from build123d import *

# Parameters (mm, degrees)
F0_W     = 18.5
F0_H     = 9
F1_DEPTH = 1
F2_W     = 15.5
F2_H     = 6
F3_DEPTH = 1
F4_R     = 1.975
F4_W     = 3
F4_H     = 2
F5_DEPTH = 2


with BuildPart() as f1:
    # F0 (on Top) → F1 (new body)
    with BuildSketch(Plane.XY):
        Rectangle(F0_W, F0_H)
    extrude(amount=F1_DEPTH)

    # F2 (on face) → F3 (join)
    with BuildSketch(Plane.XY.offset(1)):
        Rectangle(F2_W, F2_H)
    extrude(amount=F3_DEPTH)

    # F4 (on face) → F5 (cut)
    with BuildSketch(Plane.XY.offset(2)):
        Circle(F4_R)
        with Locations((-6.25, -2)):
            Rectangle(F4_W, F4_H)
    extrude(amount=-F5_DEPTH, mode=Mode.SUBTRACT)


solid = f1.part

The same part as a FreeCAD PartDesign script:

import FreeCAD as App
import Part
import Sketcher
from FreeCAD import Vector
Q = App.Units.Quantity


def add_polygon(sketch, points):
    """Adds a closed chain of lines whose ends are joined by coincident constraints."""
    first, n = sketch.GeometryCount, len(points)
    for a, b in zip(points, points[1:] + points[:1]):
        sketch.addGeometry(Part.LineSegment(App.Vector(*a, 0), App.Vector(*b, 0)), False)
    for i in range(n):
        sketch.addConstraint(Sketcher.Constraint("Coincident", first + i, 2, first + (i + 1) % n, 1))

doc = App.newDocument("Part")
body = doc.addObject("PartDesign::Body", "Body")

# Sketch on XY plane
sketch1 = doc.addObject("Sketcher::SketchObject", "Sketch")
body.addObject(sketch1)
sketch1.AttachmentSupport = (doc.XY_Plane, [""])
sketch1.MapMode = "FlatFace"
add_polygon(sketch1, [(-9, 4), (-9, -4), (9, -4), (9, 4)])  # lines 0-3
sketch1.addConstraint([
    Sketcher.Constraint("Vertical", 0),
    Sketcher.Constraint("Horizontal", 1),
    Sketcher.Constraint("Vertical", 2),
    Sketcher.Constraint("Horizontal", 3),
    Sketcher.Constraint("Symmetric", 0, 2, 2, 2, -1, 1),
    Sketcher.Constraint("DistanceY", 0, 2, 0, 1, Q("9 mm")),
    Sketcher.Constraint("DistanceX", 1, 1, 1, 2, Q("18.5 mm")),
])
pad1 = doc.addObject("PartDesign::Pad", "Pad")
body.addObject(pad1)
pad1.Profile = sketch1
pad1.Length = 1

# Sketch on XY plane
sketch2 = doc.addObject("Sketcher::SketchObject", "Sketch001")
body.addObject(sketch2)
sketch2.AttachmentSupport = (doc.XY_Plane, [""])
sketch2.MapMode = "FlatFace"
sketch2.AttachmentOffset = App.Placement(Vector(0, 0, 1), App.Rotation())
add_polygon(sketch2, [(-8, 3), (-8, -3), (8, -3), (8, 3)])  # lines 0-3
sketch2.addConstraint([
    Sketcher.Constraint("Vertical", 0),
    Sketcher.Constraint("Horizontal", 1),
    Sketcher.Constraint("Vertical", 2),
    Sketcher.Constraint("Horizontal", 3),
    Sketcher.Constraint("Symmetric", 0, 2, 2, 2, -1, 1),
    Sketcher.Constraint("DistanceY", 0, 2, 0, 1, Q("6 mm")),
    Sketcher.Constraint("DistanceX", 1, 1, 1, 2, Q("15.5 mm")),
])
pad2 = doc.addObject("PartDesign::Pad", "Pad001")
body.addObject(pad2)
pad2.Profile = sketch2
pad2.Length = 1

# Sketch on XY plane
sketch3 = doc.addObject("Sketcher::SketchObject", "Sketch002")
body.addObject(sketch3)
sketch3.AttachmentSupport = (doc.XY_Plane, [""])
sketch3.MapMode = "FlatFace"
sketch3.AttachmentOffset = App.Placement(Vector(0, 0, 2), App.Rotation())
sketch3.addGeometry(Part.Circle(Vector(0, 0, 0), Vector(0, 0, 1), 2), False)  # 0
add_polygon(sketch3, [(-7.8, -1), (-7.8, -3), (-4.8, -3), (-4.8, -1)])  # lines 1-4
sketch3.addConstraint([
    Sketcher.Constraint("Vertical", 1),
    Sketcher.Constraint("Horizontal", 2),
    Sketcher.Constraint("Vertical", 3),
    Sketcher.Constraint("Horizontal", 4),
    Sketcher.Constraint("Coincident", 0, 3, -1, 1),
    Sketcher.Constraint("Diameter", 0, Q("3.95 mm")),
    Sketcher.Constraint("DistanceX", 2, 1, 2, 2, Q("3 mm")),
    Sketcher.Constraint("DistanceY", 1, 2, 1, 1, Q("2 mm")),
    Sketcher.Constraint("DistanceY", 1, 2, -1, 1, Q("3 mm")),
    Sketcher.Constraint("DistanceX", 1, 2, -1, 1, Q("7.75 mm")),
])
pocket1 = doc.addObject("PartDesign::Pocket", "Pocket")
body.addObject(pocket1)
pocket1.Profile = sketch3
pocket1.Length = 2

doc.recompute()
